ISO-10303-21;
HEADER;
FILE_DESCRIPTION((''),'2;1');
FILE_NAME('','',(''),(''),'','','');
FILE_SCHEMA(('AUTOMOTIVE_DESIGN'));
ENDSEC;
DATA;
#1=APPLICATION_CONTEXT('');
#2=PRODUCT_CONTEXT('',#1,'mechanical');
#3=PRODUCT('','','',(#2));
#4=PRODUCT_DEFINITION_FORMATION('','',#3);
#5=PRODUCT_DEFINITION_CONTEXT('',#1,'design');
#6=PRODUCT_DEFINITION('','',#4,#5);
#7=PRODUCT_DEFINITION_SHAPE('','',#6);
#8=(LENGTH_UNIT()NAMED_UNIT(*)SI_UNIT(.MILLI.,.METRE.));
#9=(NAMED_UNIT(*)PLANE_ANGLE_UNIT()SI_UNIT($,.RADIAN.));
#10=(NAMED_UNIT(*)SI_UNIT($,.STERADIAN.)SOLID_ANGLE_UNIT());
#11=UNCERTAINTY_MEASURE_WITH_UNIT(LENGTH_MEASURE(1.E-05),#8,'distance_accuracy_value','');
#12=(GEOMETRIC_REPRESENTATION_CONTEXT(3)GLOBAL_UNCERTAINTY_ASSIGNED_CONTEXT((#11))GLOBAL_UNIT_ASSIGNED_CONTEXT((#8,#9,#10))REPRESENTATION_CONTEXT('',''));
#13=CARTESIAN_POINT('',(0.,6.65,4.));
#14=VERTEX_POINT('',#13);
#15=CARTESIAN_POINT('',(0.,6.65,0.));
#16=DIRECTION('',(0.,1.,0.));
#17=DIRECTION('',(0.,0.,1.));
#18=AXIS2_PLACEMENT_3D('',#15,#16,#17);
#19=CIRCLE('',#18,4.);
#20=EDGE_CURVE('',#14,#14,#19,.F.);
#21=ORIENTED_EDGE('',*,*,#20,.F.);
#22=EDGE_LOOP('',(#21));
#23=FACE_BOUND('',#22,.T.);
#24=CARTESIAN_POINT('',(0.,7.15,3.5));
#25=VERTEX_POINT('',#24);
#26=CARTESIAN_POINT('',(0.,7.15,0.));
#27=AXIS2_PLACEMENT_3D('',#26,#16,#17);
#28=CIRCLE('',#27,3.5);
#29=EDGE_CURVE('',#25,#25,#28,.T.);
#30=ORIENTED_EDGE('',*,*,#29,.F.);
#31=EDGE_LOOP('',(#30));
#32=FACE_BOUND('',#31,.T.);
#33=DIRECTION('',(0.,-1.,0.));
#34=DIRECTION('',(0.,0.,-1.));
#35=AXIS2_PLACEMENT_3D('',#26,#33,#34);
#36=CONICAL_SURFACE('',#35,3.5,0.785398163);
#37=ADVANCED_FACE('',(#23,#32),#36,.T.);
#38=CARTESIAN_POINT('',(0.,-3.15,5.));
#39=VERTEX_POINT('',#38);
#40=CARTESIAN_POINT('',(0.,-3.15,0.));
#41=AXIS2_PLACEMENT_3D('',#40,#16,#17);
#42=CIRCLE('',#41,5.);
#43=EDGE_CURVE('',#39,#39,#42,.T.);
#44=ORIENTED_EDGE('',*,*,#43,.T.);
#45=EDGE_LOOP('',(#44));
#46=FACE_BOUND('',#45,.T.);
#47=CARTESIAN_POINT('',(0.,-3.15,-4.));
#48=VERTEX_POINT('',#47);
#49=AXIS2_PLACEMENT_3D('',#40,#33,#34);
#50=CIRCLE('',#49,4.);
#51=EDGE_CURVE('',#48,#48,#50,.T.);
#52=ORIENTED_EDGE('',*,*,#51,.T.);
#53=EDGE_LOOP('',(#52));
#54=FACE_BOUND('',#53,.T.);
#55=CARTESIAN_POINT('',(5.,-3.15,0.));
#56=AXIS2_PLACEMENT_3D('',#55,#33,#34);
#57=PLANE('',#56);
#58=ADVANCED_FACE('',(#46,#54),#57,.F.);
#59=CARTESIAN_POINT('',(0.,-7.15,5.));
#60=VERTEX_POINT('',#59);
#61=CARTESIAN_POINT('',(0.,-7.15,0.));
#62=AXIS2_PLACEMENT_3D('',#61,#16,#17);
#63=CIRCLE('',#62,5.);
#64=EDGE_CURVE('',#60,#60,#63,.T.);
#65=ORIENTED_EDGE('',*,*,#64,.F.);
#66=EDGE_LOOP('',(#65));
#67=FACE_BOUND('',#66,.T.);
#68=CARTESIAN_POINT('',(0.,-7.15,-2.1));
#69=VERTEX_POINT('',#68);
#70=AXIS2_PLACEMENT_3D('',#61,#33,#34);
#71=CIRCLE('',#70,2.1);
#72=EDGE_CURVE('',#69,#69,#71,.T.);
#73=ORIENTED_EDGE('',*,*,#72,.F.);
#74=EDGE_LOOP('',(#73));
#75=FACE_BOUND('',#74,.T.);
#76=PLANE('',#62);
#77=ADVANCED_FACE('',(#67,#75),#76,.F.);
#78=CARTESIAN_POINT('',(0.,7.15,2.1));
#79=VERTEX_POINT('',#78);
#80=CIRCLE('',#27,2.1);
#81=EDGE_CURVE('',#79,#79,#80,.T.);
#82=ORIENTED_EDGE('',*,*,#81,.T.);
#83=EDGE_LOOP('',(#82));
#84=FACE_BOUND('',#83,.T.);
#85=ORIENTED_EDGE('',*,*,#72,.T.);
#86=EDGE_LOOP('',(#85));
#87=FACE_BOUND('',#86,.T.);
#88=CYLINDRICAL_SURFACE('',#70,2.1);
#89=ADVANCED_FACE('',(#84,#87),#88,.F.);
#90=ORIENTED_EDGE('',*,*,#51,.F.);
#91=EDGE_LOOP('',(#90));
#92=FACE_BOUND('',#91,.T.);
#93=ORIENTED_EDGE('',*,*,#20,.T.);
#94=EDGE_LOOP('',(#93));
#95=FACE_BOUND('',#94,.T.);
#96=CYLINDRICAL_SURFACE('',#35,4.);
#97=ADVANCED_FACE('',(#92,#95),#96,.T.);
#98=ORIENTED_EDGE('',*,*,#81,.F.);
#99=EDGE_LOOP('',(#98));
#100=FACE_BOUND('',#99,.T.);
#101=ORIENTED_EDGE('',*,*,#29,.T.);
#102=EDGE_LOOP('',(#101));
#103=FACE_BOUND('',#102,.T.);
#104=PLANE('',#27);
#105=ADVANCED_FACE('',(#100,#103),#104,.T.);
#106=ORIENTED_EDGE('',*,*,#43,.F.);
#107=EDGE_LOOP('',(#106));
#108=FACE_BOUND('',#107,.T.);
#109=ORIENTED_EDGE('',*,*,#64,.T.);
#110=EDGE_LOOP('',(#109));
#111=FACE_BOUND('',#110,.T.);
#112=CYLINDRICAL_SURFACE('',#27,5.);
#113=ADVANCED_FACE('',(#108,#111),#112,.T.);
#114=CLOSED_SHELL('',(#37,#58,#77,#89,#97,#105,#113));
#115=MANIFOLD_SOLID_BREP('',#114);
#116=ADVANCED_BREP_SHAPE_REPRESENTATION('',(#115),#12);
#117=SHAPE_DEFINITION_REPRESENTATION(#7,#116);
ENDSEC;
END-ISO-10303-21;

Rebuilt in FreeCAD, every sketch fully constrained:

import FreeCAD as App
import Part
import Sketcher
Q = App.Units.Quantity


def edges_at(feature, points):
    """Names of the edges that pass closest to the given points."""
    edges = feature.Shape.Edges
    near = lambda p: min(range(len(edges)), key=lambda i: edges[i].distToShape(Part.Vertex(*p))[0])
    return sorted({f"Edge{near(p) + 1}" for p in points})


def add_polygon(sketch, points):
    """Adds a closed chain of lines whose ends are joined by coincident constraints."""
    first, n = sketch.GeometryCount, len(points)
    for a, b in zip(points, points[1:] + points[:1]):
        sketch.addGeometry(Part.LineSegment(App.Vector(*a, 0), App.Vector(*b, 0)), False)
    for i in range(n):
        sketch.addConstraint(Sketcher.Constraint("Coincident", first + i, 2, first + (i + 1) % n, 1))

doc = App.newDocument("Part")
params = doc.addObject("Spreadsheet::Sheet", "Params")
for row, (alias, value) in enumerate([
    ("sketch1_diameter", "8 mm"),
    ("pad1_length", "14.3 mm"),
    ("sketch2_width", "1 mm"),
    ("sketch2_height", "4 mm"),
    ("revolution_angle", "360 deg"),
    ("chamfer_size", "0.5 mm"),
    ("sketch3_diameter", "4.2 mm"),
    ("hole_diameter", "4.2 mm"),
    ("hole_depth", "17.4 mm"),
], start=1):
    params.set(f"A{row}", alias)
    params.set(f"B{row}", "=" + value)
    params.setAlias(f"B{row}", alias)

body = doc.addObject("PartDesign::Body", "Body")

# Sketch on XZ plane
sketch1 = body.newObject("Sketcher::SketchObject", "Sketch")
sketch1.AttachmentSupport = (doc.getObject("XZ_Plane"), [""])
sketch1.MapMode = "FlatFace"
sketch1.addGeometry(Part.Circle(App.Vector(0, 0, 0), App.Vector(0, 0, 1), 4), False)
sketch1.addConstraint(Sketcher.Constraint("Coincident", 0, 3, -1, 1))
sketch1.addConstraint(Sketcher.Constraint("Diameter", 0, Q("8 mm")))
sketch1.setExpression("Constraints[1]", "Params.sketch1_diameter")
pad1 = body.newObject("PartDesign::Pad", "Pad")
pad1.Profile = sketch1
pad1.setExpression("Length", "Params.pad1_length")
pad1.Midplane = True

# Sketch on XY plane
sketch2 = body.newObject("Sketcher::SketchObject", "Sketch001")
sketch2.AttachmentSupport = (doc.getObject("XY_Plane"), [""])
sketch2.MapMode = "FlatFace"
add_polygon(sketch2, [(4, -3.15), (4, -7.15), (5, -7.15), (5, -3.15)])  # lines 0-3
sketch2.addConstraint(Sketcher.Constraint("Vertical", 0))
sketch2.addConstraint(Sketcher.Constraint("Horizontal", 1))
sketch2.addConstraint(Sketcher.Constraint("Vertical", 2))
sketch2.addConstraint(Sketcher.Constraint("Horizontal", 3))
sketch2.addConstraint(Sketcher.Constraint("DistanceX", 1, 1, 1, 2, Q("1 mm")))
sketch2.addConstraint(Sketcher.Constraint("DistanceY", 0, 2, 0, 1, Q("4 mm")))
sketch2.addConstraint(Sketcher.Constraint("DistanceX", -1, 1, 0, 2, Q("4 mm")))
sketch2.addConstraint(Sketcher.Constraint("DistanceY", 0, 2, -1, 1, Q("7.15 mm")))
sketch2.setExpression("Constraints[8]", "Params.sketch2_width")
sketch2.setExpression("Constraints[9]", "Params.sketch2_height")
revolution = body.newObject("PartDesign::Revolution", "Revolution")
revolution.Profile = sketch2
revolution.ReferenceAxis = (sketch2, ["V_Axis"])
revolution.setExpression("Angle", "Params.revolution_angle")
doc.recompute()

chamfer = body.newObject("PartDesign::Chamfer", "Chamfer")
chamfer.Base = (revolution, edges_at(revolution, [(0, 7.15, -4)]))
chamfer.setExpression("Size", "Params.chamfer_size")

# Sketch on XZ plane
sketch3 = body.newObject("Sketcher::SketchObject", "Sketch002")
sketch3.AttachmentSupport = (doc.getObject("XZ_Plane"), [""])
sketch3.MapMode = "FlatFace"
sketch3.AttachmentOffset = App.Placement(App.Vector(0, 0, 7.15), App.Rotation())
sketch3.addGeometry(Part.Circle(App.Vector(0, 0, 0), App.Vector(0, 0, 1), 2.1), False)
sketch3.addConstraint(Sketcher.Constraint("Coincident", 0, 3, -1, 1))
sketch3.addConstraint(Sketcher.Constraint("Diameter", 0, Q("4.2 mm")))
sketch3.setExpression("Constraints[1]", "Params.sketch3_diameter")
doc.recompute()
hole = body.newObject("PartDesign::Hole", "Hole")
hole.Profile = sketch3
hole.ThreadType = "None"
hole.setExpression("Diameter", "Params.hole_diameter")
hole.DepthType = "Dimension"
hole.setExpression("Depth", "Params.hole_depth")
hole.DrillPoint = "Angled"
hole.DrillPointAngle = 118

doc.recompute()
